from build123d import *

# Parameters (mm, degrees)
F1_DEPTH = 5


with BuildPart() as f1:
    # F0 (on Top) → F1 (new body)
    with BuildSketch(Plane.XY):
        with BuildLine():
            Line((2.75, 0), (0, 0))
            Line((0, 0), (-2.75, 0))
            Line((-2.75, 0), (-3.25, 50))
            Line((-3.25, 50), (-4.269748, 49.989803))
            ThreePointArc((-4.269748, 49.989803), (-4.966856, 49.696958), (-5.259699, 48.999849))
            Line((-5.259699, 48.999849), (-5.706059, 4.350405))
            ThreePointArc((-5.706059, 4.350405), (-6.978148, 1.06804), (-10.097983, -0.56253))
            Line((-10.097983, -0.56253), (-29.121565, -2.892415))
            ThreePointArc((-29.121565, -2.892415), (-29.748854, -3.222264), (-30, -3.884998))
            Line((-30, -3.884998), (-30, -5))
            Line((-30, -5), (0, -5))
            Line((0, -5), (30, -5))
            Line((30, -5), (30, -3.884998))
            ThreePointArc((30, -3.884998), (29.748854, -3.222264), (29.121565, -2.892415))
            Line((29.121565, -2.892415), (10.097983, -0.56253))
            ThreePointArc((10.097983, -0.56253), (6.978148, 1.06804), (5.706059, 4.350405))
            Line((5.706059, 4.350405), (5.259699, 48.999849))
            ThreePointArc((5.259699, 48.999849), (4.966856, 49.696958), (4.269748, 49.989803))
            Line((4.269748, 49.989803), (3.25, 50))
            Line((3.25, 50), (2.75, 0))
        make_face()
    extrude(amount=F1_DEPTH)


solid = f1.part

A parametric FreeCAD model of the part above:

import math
import FreeCAD as App
import Part
import Sketcher

doc = App.newDocument("Part")
params = doc.addObject("Spreadsheet::Sheet", "Params")
for row, (alias, value) in enumerate([
    ("sketch1_radius", "5.000001 mm"),
    ("sketch1_radius2", "1.000001 mm"),
    ("sketch1_width", "60 mm"),
    ("sketch1_width2", "5.5 mm"),
    ("sketch1_height", "0.009999 mm"),
    ("pad1_length", "5 mm"),
], start=1):
    params.set(f"A{row}", alias)
    params.set(f"B{row}", "=" + value)
    params.setAlias(f"B{row}", alias)

body = doc.addObject("PartDesign::Body", "Body")

sketch1 = body.newObject("Sketcher::SketchObject", "Sketch")
sketch1.AttachmentSupport = (doc.getObject("XY_Plane"), [""])
sketch1.MapMode = "FlatFace"
sketch1.addGeometry([
    Part.LineSegment(App.Vector(2.75, 0, 0), App.Vector(-2.75, 0, 0)),
    Part.LineSegment(App.Vector(-2.75, 0, 0), App.Vector(-3.25, 50, 0)),
    Part.LineSegment(App.Vector(-3.25, 50, 0), App.Vector(-4.269748, 49.989803, 0)),
    Part.ArcOfCircle(Part.Circle(App.Vector(-4.259746, 48.98985, 0), App.Vector(0, 0, 1), 1.000003), math.radians(90.573063), math.radians(179.427111)),
    Part.LineSegment(App.Vector(-5.259699, 48.999849, 0), App.Vector(-5.706059, 4.350405, 0)),
    Part.ArcOfCircle(Part.Circle(App.Vector(-10.70581, 4.400388, 0), App.Vector(0, 0, 1), 5.000001), math.radians(-83.017542), math.radians(-0.572776)),
    Part.LineSegment(App.Vector(-10.097983, -0.56253, 0), App.Vector(-29.121565, -2.892415, 0)),
    Part.ArcOfCircle(Part.Circle(App.Vector(-28.999999, -3.884999, 0), App.Vector(0, 0, 1), 1.000001), math.radians(96.982485), math.radians(179.99992)),
    Part.LineSegment(App.Vector(-30, -3.884998, 0), App.Vector(-30, -5, 0)),
    Part.LineSegment(App.Vector(-30, -5, 0), App.Vector(30, -5, 0)),
    Part.LineSegment(App.Vector(30, -5, 0), App.Vector(30, -3.884998, 0)),
    Part.ArcOfCircle(Part.Circle(App.Vector(28.999999, -3.884999, 0), App.Vector(0, 0, 1), 1.000001), math.radians(0.00008), math.radians(83.017515)),
    Part.LineSegment(App.Vector(29.121565, -2.892415, 0), App.Vector(10.097983, -0.56253, 0)),
    Part.ArcOfCircle(Part.Circle(App.Vector(10.70581, 4.400388, 0), App.Vector(0, 0, 1), 5.000001), math.radians(-179.427224), math.radians(-96.982458)),
    Part.LineSegment(App.Vector(5.706059, 4.350405, 0), App.Vector(5.259699, 48.999849, 0)),
    Part.ArcOfCircle(Part.Circle(App.Vector(4.259746, 48.98985, 0), App.Vector(0, 0, 1), 1.000003), math.radians(0.572889), math.radians(89.426937)),
    Part.LineSegment(App.Vector(4.269748, 49.989803, 0), App.Vector(3.25, 50, 0)),
    Part.LineSegment(App.Vector(3.25, 50, 0), App.Vector(2.75, 0, 0)),
], False)
sketch1.addConstraint([
    Sketcher.Constraint("Coincident", 0, 2, 1, 1),
    Sketcher.Constraint("Coincident", 1, 2, 2, 1),
    Sketcher.Constraint("Coincident", 2, 2, 3, 1),
    Sketcher.Constraint("Coincident", 3, 2, 4, 1),
    Sketcher.Constraint("Tangent", 4, 2, 5, 2),
    Sketcher.Constraint("Tangent", 5, 1, 6, 1),
    Sketcher.Constraint("Tangent", 6, 2, 7, 1),
    Sketcher.Constraint("Tangent", 7, 2, 8, 1),
    Sketcher.Constraint("Coincident", 8, 2, 9, 1),
    Sketcher.Constraint("Coincident", 9, 2, 10, 1),
    Sketcher.Constraint("Tangent", 10, 2, 11, 1),
    Sketcher.Constraint("Tangent", 11, 2, 12, 1),
    Sketcher.Constraint("Tangent", 12, 2, 13, 2),
    Sketcher.Constraint("Tangent", 13, 1, 14, 1),
    Sketcher.Constraint("Coincident", 14, 2, 15, 1),
    Sketcher.Constraint("Coincident", 15, 2, 16, 1),
    Sketcher.Constraint("Coincident", 16, 2, 17, 1),
    Sketcher.Constraint("Coincident", 17, 2, 0, 1),
    Sketcher.Constraint("Horizontal", 0),
    Sketcher.Constraint("Vertical", 8),
    Sketcher.Constraint("Horizontal", 9),
    Sketcher.Constraint("Vertical", 10),
    Sketcher.Constraint("Equal", 3, 7),
    Sketcher.Constraint("Equal", 7, 11),
    Sketcher.Constraint("Equal", 5, 13),
    Sketcher.Constraint("Equal", 11, 15),
    Sketcher.Constraint("Symmetric", 0, 2, 17, 2, -1, 1),
    Sketcher.Constraint("Symmetric", 7, 3, 11, 3, -2),
    Sketcher.Constraint("Symmetric", 5, 3, 13, 3, -2),
    Sketcher.Constraint("Symmetric", 3, 3, 15, 3, -2),
    Sketcher.Constraint("Symmetric", 1, 2, 16, 2, -2),
    Sketcher.Constraint("Perpendicular", 1, 2),
    Sketcher.Constraint("Horizontal", 3, 2, 14, 2),
    Sketcher.Constraint("Horizontal", 2, 2, 15, 2),
    Sketcher.Constraint("Radius", 5, 5.000001),
    Sketcher.Constraint("Radius", 7, 1.000001),
    Sketcher.Constraint("DistanceX", 9, 1, 9, 2, 60.0),
    Sketcher.Constraint("DistanceX", 0, 2, 0, 1, 5.5),
    Sketcher.Constraint("DistanceY", -1, 1, 1, 2, 50.0),
    Sketcher.Constraint("DistanceY", 8, 2, -1, 1, 5.0),
    Sketcher.Constraint("DistanceX", 1, 2, 0, 2, 0.5),
    Sketcher.Constraint("DistanceX", 2, 2, 3, 3, 0.010002),
    Sketcher.Constraint("DistanceY", 3, 3, 3, 2, 0.009999),
    Sketcher.Constraint("DistanceY", 7, 3, -1, 1, 3.884999),
    Sketcher.Constraint("Distance", 2, 1.019799),
    Sketcher.Constraint("DistanceX", 5, 3, -1, 1, 10.70581),
    Sketcher.Constraint("DistanceY", -1, 1, 5, 3, 4.400388),
])
sketch1.setExpression("Constraints[34]", "Params.sketch1_radius")
sketch1.setExpression("Constraints[35]", "Params.sketch1_radius2")
sketch1.setExpression("Constraints[36]", "Params.sketch1_width")
sketch1.setExpression("Constraints[37]", "Params.sketch1_width2")
sketch1.setExpression("Constraints[42]", "Params.sketch1_height")
pad1 = body.newObject("PartDesign::Pad", "Pad")
pad1.Profile = sketch1
pad1.setExpression("Length", "Params.pad1_length")

doc.recompute()
